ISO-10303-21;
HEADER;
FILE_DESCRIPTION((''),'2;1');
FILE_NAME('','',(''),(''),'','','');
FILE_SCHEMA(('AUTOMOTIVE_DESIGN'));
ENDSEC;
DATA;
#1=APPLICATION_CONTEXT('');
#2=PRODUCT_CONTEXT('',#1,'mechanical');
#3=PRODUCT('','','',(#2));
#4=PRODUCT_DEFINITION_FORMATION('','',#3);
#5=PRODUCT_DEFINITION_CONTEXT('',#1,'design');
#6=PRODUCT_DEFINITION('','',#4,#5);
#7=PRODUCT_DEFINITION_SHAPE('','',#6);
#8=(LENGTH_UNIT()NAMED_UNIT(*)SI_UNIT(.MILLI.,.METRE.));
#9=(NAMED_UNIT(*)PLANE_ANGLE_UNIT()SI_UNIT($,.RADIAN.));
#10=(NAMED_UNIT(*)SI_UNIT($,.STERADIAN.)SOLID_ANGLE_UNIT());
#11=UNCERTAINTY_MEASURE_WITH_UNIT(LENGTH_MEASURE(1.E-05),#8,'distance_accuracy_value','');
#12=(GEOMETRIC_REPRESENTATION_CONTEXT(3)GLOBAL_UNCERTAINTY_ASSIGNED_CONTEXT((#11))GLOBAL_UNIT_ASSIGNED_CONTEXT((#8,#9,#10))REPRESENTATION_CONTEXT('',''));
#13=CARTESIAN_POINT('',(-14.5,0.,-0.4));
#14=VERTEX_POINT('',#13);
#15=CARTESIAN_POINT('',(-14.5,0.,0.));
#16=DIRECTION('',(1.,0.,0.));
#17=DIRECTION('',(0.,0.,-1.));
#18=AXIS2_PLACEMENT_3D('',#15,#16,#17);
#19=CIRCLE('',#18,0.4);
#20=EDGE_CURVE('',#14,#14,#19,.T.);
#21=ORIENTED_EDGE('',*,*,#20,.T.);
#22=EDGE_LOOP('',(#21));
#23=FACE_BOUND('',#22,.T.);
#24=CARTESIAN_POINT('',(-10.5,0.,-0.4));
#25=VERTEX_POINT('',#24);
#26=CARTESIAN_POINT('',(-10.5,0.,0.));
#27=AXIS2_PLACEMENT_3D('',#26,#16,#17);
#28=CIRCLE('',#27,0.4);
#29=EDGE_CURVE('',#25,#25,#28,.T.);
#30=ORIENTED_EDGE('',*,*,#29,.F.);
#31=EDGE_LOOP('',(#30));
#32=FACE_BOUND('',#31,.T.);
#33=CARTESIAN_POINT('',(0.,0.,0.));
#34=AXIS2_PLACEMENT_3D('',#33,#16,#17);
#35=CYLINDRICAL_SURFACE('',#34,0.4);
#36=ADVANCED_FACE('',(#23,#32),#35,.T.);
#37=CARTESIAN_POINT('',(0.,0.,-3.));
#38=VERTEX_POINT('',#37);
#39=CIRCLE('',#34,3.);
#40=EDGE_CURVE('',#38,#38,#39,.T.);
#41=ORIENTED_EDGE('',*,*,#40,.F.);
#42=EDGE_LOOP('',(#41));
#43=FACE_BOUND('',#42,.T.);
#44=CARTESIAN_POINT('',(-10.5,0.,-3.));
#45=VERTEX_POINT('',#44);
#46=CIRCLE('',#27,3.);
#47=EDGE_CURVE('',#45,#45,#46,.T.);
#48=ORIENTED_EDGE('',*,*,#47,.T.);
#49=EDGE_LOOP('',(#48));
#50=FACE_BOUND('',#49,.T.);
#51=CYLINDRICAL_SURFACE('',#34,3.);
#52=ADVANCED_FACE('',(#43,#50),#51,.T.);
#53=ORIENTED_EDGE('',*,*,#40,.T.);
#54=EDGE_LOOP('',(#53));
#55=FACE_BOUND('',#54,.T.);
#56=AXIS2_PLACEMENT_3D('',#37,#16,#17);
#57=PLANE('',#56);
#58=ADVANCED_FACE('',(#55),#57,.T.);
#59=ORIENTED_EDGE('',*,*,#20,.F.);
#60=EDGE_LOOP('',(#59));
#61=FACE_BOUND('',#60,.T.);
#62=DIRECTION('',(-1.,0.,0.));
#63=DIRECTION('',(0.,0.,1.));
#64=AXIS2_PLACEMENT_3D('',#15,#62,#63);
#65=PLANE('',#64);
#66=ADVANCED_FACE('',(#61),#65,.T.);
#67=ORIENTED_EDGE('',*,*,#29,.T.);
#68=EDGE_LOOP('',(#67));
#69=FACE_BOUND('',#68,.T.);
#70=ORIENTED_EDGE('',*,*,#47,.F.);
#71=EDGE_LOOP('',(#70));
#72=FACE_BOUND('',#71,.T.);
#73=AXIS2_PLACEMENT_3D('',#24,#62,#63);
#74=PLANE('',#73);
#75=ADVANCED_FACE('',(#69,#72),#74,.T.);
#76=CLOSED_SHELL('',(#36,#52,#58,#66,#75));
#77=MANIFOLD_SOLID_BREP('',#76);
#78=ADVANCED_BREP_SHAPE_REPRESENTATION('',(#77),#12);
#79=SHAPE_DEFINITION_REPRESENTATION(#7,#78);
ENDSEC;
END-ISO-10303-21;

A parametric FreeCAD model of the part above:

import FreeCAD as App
import Part
import Sketcher

V = App.Vector

doc = App.newDocument("Part")
params = doc.addObject("Spreadsheet::Sheet", "Params")
for row, (alias, value) in enumerate([
    ("sketch1_width", "4 mm"),
    ("sketch1_height", "3 mm"),
    ("sketch1_width2", "14.5 mm"),
    ("sketch1_height2", "2.6 mm"),
    ("revolution_angle", "360 deg"),
], start=1):
    params.set(f"A{row}", alias)
    params.set(f"B{row}", "=" + value)
    params.setAlias(f"B{row}", alias)

body = doc.addObject("PartDesign::Body", "Body")

sketch1 = body.newObject("Sketcher::SketchObject", "Sketch")
sketch1.AttachmentSupport = (doc.getObject("XZ_Plane"), [""])
sketch1.MapMode = "FlatFace"
sketch1.addGeometry([
    Part.LineSegment(V(-14.5, 0, 0), V(0, 0, 0)),
    Part.LineSegment(V(0, 0, 0), V(0, -3, 0)),
    Part.LineSegment(V(0, -3, 0), V(-10.5, -3, 0)),
    Part.LineSegment(V(-10.5, -3, 0), V(-10.5, -0.4, 0)),
    Part.LineSegment(V(-10.5, -0.4, 0), V(-14.5, -0.4, 0)),
    Part.LineSegment(V(-14.5, -0.4, 0), V(-14.5, 0, 0)),
], False)
sketch1.addConstraint([
    Sketcher.Constraint("Coincident", 0, 2, 1, 1),
    Sketcher.Constraint("Coincident", 1, 2, 2, 1),
    Sketcher.Constraint("Coincident", 2, 2, 3, 1),
    Sketcher.Constraint("Coincident", 3, 2, 4, 1),
    Sketcher.Constraint("Coincident", 4, 2, 5, 1),
    Sketcher.Constraint("Coincident", 5, 2, 0, 1),
    Sketcher.Constraint("Horizontal", 0),
    Sketcher.Constraint("Vertical", 1),
    Sketcher.Constraint("Horizontal", 2),
    Sketcher.Constraint("Vertical", 3),
    Sketcher.Constraint("Horizontal", 4),
    Sketcher.Constraint("Vertical", 5),
    Sketcher.Constraint("Coincident", 0, 2, -1, 1),
    Sketcher.Constraint("DistanceX", 4, 2, 4, 1, 4.0),
    Sketcher.Constraint("DistanceY", 1, 2, 1, 1, 3.0),
    Sketcher.Constraint("DistanceX", 0, 1, 0, 2, 14.5),
    Sketcher.Constraint("DistanceY", 3, 1, 3, 2, 2.6),
])
sketch1.setExpression("Constraints[13]", "Params.sketch1_width")
sketch1.setExpression("Constraints[14]", "Params.sketch1_height")
sketch1.setExpression("Constraints[15]", "Params.sketch1_width2")
sketch1.setExpression("Constraints[16]", "Params.sketch1_height2")
revolution = body.newObject("PartDesign::Revolution", "Revolution")
revolution.Profile = sketch1
revolution.ReferenceAxis = (sketch1, ["H_Axis"])
revolution.setExpression("Angle", "Params.revolution_angle")

doc.recompute()
